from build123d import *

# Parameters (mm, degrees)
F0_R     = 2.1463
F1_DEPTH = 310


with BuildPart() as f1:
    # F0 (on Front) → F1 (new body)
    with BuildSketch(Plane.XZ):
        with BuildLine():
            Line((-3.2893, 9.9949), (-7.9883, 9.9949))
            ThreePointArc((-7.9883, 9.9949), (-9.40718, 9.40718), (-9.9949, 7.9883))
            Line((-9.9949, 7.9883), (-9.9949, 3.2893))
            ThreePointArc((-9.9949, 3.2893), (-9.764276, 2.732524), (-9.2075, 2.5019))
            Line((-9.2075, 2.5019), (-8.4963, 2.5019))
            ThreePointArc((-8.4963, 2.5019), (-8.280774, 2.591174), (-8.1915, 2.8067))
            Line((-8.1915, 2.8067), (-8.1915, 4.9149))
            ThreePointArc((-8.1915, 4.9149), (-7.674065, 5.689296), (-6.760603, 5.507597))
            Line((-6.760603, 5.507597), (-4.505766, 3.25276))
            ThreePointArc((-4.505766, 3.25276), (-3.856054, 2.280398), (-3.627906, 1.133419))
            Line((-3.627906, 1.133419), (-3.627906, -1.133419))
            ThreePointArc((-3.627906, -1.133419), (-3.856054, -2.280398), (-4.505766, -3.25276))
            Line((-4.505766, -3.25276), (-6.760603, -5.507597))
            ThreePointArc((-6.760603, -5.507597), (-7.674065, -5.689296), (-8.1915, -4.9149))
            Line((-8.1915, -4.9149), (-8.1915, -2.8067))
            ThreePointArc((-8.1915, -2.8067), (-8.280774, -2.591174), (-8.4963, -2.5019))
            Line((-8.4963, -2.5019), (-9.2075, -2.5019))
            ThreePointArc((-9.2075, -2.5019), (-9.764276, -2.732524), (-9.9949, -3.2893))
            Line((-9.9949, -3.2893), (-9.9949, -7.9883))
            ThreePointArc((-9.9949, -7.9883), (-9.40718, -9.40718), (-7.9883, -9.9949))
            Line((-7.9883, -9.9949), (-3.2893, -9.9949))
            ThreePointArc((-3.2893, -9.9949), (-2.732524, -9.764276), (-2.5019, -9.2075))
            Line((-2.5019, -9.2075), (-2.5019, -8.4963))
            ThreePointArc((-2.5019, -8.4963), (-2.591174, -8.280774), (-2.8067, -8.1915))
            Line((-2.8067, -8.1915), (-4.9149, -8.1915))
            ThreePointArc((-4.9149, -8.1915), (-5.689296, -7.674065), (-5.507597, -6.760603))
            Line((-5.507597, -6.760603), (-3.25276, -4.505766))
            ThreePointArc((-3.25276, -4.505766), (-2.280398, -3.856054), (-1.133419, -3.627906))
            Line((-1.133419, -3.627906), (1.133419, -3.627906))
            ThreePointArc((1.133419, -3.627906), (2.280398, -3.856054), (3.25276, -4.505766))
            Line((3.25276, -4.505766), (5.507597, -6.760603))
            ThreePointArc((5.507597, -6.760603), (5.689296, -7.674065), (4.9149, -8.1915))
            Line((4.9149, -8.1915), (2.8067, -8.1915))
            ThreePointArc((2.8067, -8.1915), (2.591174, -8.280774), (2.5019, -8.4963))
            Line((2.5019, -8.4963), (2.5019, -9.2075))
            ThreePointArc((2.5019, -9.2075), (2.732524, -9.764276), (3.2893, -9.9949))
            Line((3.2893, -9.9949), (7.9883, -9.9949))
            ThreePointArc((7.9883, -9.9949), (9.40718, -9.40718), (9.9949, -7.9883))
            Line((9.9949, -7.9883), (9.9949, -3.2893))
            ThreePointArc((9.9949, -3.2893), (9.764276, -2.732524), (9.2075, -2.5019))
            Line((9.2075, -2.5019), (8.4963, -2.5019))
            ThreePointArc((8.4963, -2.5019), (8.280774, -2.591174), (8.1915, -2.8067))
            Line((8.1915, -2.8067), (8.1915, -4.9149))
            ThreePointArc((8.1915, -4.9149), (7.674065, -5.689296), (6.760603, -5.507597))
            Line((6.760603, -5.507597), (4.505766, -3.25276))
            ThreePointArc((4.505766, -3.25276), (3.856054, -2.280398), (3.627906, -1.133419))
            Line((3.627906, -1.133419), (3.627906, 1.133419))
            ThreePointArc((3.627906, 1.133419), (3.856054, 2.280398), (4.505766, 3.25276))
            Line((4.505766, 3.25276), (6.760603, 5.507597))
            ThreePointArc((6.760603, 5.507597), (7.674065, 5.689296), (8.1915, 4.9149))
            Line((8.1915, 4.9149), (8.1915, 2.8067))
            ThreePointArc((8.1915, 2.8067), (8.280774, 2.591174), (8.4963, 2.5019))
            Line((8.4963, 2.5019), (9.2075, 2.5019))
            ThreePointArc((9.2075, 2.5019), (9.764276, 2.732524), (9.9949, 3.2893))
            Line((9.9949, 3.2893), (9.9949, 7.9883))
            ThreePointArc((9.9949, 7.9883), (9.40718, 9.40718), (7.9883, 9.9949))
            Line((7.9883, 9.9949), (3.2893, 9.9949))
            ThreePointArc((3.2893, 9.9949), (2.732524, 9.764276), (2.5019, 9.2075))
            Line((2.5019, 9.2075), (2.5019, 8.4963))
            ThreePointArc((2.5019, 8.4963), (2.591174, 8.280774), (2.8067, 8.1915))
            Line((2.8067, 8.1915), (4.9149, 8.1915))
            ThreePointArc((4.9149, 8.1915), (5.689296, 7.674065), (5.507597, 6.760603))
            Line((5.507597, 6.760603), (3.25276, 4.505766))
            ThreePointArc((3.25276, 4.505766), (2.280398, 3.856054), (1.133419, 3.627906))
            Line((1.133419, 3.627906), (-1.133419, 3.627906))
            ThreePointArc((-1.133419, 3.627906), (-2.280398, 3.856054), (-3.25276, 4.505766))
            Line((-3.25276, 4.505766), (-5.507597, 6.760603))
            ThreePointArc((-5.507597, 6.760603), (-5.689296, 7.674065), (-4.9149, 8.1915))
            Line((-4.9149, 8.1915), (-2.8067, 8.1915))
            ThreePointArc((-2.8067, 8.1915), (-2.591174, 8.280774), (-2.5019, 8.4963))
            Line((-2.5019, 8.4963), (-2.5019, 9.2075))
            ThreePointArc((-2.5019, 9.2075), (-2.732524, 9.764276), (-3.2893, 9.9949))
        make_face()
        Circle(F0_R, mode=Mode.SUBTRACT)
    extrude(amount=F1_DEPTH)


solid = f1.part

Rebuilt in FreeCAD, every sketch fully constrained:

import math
import FreeCAD as App
import Part
import Sketcher
from FreeCAD import Vector
Q = App.Units.Quantity

doc = App.newDocument("Part")
body = doc.addObject("PartDesign::Body", "Body")

# Sketch on XZ plane
sketch1 = body.newObject("Sketcher::SketchObject", "Sketch")
sketch1.AttachmentSupport = (doc.getObject("XZ_Plane"), [""])
sketch1.MapMode = "FlatFace"
sketch1.addGeometry(Part.LineSegment(Vector(-3.29, 9.99, 0), Vector(-7.99, 9.99, 0)), False)
sketch1.addGeometry(Part.ArcOfCircle(Part.Circle(Vector(-7.99, 7.99, 0), Vector(0, 0, 1), 2.01), math.radians(90), math.radians(180)), False)
sketch1.addGeometry(Part.LineSegment(Vector(-9.99, 7.99, 0), Vector(-9.99, 3.29, 0)), False)
sketch1.addGeometry(Part.ArcOfCircle(Part.Circle(Vector(-9.21, 3.29, 0), Vector(0, 0, 1), 0.79), math.radians(180), math.radians(270)), False)
sketch1.addGeometry(Part.LineSegment(Vector(-9.21, 2.5, 0), Vector(-8.5, 2.5, 0)), False)
sketch1.addGeometry(Part.ArcOfCircle(Part.Circle(Vector(-8.5, 2.81, 0), Vector(0, 0, 1), 0.3), math.radians(-90), math.radians(0)), False)
sketch1.addGeometry(Part.LineSegment(Vector(-8.19, 2.81, 0), Vector(-8.19, 4.91, 0)), False)
sketch1.addGeometry(Part.ArcOfCircle(Part.Circle(Vector(-7.35, 4.91, 0), Vector(0, 0, 1), 0.84), math.radians(45), math.radians(180)), False)
sketch1.addGeometry(Part.LineSegment(Vector(-6.76, 5.51, 0), Vector(-4.51, 3.25, 0)), False)
sketch1.addGeometry(Part.ArcOfCircle(Part.Circle(Vector(-6.63, 1.13, 0), Vector(0, 0, 1), 3), math.radians(0), math.radians(45)), False)
sketch1.addGeometry(Part.LineSegment(Vector(-3.63, 1.13, 0), Vector(-3.63, -1.13, 0)), False)
sketch1.addGeometry(Part.ArcOfCircle(Part.Circle(Vector(-6.63, -1.13, 0), Vector(0, 0, 1), 3), math.radians(-45), math.radians(0)), False)
sketch1.addGeometry(Part.LineSegment(Vector(-4.51, -3.25, 0), Vector(-6.76, -5.51, 0)), False)
sketch1.addGeometry(Part.ArcOfCircle(Part.Circle(Vector(-7.35, -4.91, 0), Vector(0, 0, 1), 0.84), math.radians(180), math.radians(315)), False)
sketch1.addGeometry(Part.LineSegment(Vector(-8.19, -4.91, 0), Vector(-8.19, -2.81, 0)), False)
sketch1.addGeometry(Part.ArcOfCircle(Part.Circle(Vector(-8.5, -2.81, 0), Vector(0, 0, 1), 0.3), math.radians(0), math.radians(90)), False)
sketch1.addGeometry(Part.LineSegment(Vector(-8.5, -2.5, 0), Vector(-9.21, -2.5, 0)), False)
sketch1.addGeometry(Part.ArcOfCircle(Part.Circle(Vector(-9.21, -3.29, 0), Vector(0, 0, 1), 0.79), math.radians(90), math.radians(180)), False)
sketch1.addGeometry(Part.LineSegment(Vector(-9.99, -3.29, 0), Vector(-9.99, -7.99, 0)), False)
sketch1.addGeometry(Part.ArcOfCircle(Part.Circle(Vector(-7.99, -7.99, 0), Vector(0, 0, 1), 2.01), math.radians(-180), math.radians(-90)), False)
sketch1.addGeometry(Part.LineSegment(Vector(-7.99, -9.99, 0), Vector(-3.29, -9.99, 0)), False)
sketch1.addGeometry(Part.ArcOfCircle(Part.Circle(Vector(-3.29, -9.21, 0), Vector(0, 0, 1), 0.79), math.radians(-90), math.radians(0)), False)
sketch1.addGeometry(Part.LineSegment(Vector(-2.5, -9.21, 0), Vector(-2.5, -8.5, 0)), False)
sketch1.addGeometry(Part.ArcOfCircle(Part.Circle(Vector(-2.81, -8.5, 0), Vector(0, 0, 1), 0.3), math.radians(0), math.radians(90)), False)
sketch1.addGeometry(Part.LineSegment(Vector(-2.81, -8.19, 0), Vector(-4.91, -8.19, 0)), False)
sketch1.addGeometry(Part.ArcOfCircle(Part.Circle(Vector(-4.91, -7.35, 0), Vector(0, 0, 1), 0.84), math.radians(135), math.radians(270)), False)
sketch1.addGeometry(Part.LineSegment(Vector(-5.51, -6.76, 0), Vector(-3.25, -4.51, 0)), False)
sketch1.addGeometry(Part.ArcOfCircle(Part.Circle(Vector(-1.13, -6.63, 0), Vector(0, 0, 1), 3), math.radians(90), math.radians(135)), False)
sketch1.addGeometry(Part.LineSegment(Vector(-1.13, -3.63, 0), Vector(1.13, -3.63, 0)), False)
sketch1.addGeometry(Part.ArcOfCircle(Part.Circle(Vector(1.13, -6.63, 0), Vector(0, 0, 1), 3), math.radians(45), math.radians(90)), False)
sketch1.addGeometry(Part.LineSegment(Vector(3.25, -4.51, 0), Vector(5.51, -6.76, 0)), False)
sketch1.addGeometry(Part.ArcOfCircle(Part.Circle(Vector(4.91, -7.35, 0), Vector(0, 0, 1), 0.84), math.radians(-90), math.radians(45)), False)
sketch1.addGeometry(Part.LineSegment(Vector(4.91, -8.19, 0), Vector(2.81, -8.19, 0)), False)
sketch1.addGeometry(Part.ArcOfCircle(Part.Circle(Vector(2.81, -8.5, 0), Vector(0, 0, 1), 0.3), math.radians(90), math.radians(180)), False)
sketch1.addGeometry(Part.LineSegment(Vector(2.5, -8.5, 0), Vector(2.5, -9.21, 0)), False)
sketch1.addGeometry(Part.ArcOfCircle(Part.Circle(Vector(3.29, -9.21, 0), Vector(0, 0, 1), 0.79), math.radians(180), math.radians(270)), False)
sketch1.addGeometry(Part.LineSegment(Vector(3.29, -9.99, 0), Vector(7.99, -9.99, 0)), False)
sketch1.addGeometry(Part.ArcOfCircle(Part.Circle(Vector(7.99, -7.99, 0), Vector(0, 0, 1), 2.01), math.radians(-90), math.radians(0)), False)
sketch1.addGeometry(Part.LineSegment(Vector(9.99, -7.99, 0), Vector(9.99, -3.29, 0)), False)
sketch1.addGeometry(Part.ArcOfCircle(Part.Circle(Vector(9.21, -3.29, 0), Vector(0, 0, 1), 0.79), math.radians(0), math.radians(90)), False)
sketch1.addGeometry(Part.LineSegment(Vector(9.21, -2.5, 0), Vector(8.5, -2.5, 0)), False)
sketch1.addGeometry(Part.ArcOfCircle(Part.Circle(Vector(8.5, -2.81, 0), Vector(0, 0, 1), 0.3), math.radians(90), math.radians(180)), False)
sketch1.addGeometry(Part.LineSegment(Vector(8.19, -2.81, 0), Vector(8.19, -4.91, 0)), False)
sketch1.addGeometry(Part.ArcOfCircle(Part.Circle(Vector(7.35, -4.91, 0), Vector(0, 0, 1), 0.84), math.radians(-135), math.radians(0)), False)
sketch1.addGeometry(Part.LineSegment(Vector(6.76, -5.51, 0), Vector(4.51, -3.25, 0)), False)
sketch1.addGeometry(Part.ArcOfCircle(Part.Circle(Vector(6.63, -1.13, 0), Vector(0, 0, 1), 3), math.radians(180), math.radians(225)), False)
sketch1.addGeometry(Part.LineSegment(Vector(3.63, -1.13, 0), Vector(3.63, 1.13, 0)), False)
sketch1.addGeometry(Part.ArcOfCircle(Part.Circle(Vector(6.63, 1.13, 0), Vector(0, 0, 1), 3), math.radians(135), math.radians(180)), False)
sketch1.addGeometry(Part.LineSegment(Vector(4.51, 3.25, 0), Vector(6.76, 5.51, 0)), False)
sketch1.addGeometry(Part.ArcOfCircle(Part.Circle(Vector(7.35, 4.91, 0), Vector(0, 0, 1), 0.84), math.radians(0), math.radians(135)), False)
sketch1.addGeometry(Part.LineSegment(Vector(8.19, 4.91, 0), Vector(8.19, 2.81, 0)), False)
sketch1.addGeometry(Part.ArcOfCircle(Part.Circle(Vector(8.5, 2.81, 0), Vector(0, 0, 1), 0.3), math.radians(-180), math.radians(-90)), False)
sketch1.addGeometry(Part.LineSegment(Vector(8.5, 2.5, 0), Vector(9.21, 2.5, 0)), False)
sketch1.addGeometry(Part.ArcOfCircle(Part.Circle(Vector(9.21, 3.29, 0), Vector(0, 0, 1), 0.79), math.radians(-90), math.radians(0)), False)
sketch1.addGeometry(Part.LineSegment(Vector(9.99, 3.29, 0), Vector(9.99, 7.99, 0)), False)
sketch1.addGeometry(Part.ArcOfCircle(Part.Circle(Vector(7.99, 7.99, 0), Vector(0, 0, 1), 2.01), math.radians(0), math.radians(90)), False)
sketch1.addGeometry(Part.LineSegment(Vector(7.99, 9.99, 0), Vector(3.29, 9.99, 0)), False)
sketch1.addGeometry(Part.ArcOfCircle(Part.Circle(Vector(3.29, 9.21, 0), Vector(0, 0, 1), 0.79), math.radians(90), math.radians(180)), False)
sketch1.addGeometry(Part.LineSegment(Vector(2.5, 9.21, 0), Vector(2.5, 8.5, 0)), False)
sketch1.addGeometry(Part.ArcOfCircle(Part.Circle(Vector(2.81, 8.5, 0), Vector(0, 0, 1), 0.3), math.radians(-180), math.radians(-90)), False)
sketch1.addGeometry(Part.LineSegment(Vector(2.81, 8.19, 0), Vector(4.91, 8.19, 0)), False)
sketch1.addGeometry(Part.ArcOfCircle(Part.Circle(Vector(4.91, 7.35, 0), Vector(0, 0, 1), 0.84), math.radians(-45), math.radians(90)), False)
sketch1.addGeometry(Part.LineSegment(Vector(5.51, 6.76, 0), Vector(3.25, 4.51, 0)), False)
sketch1.addGeometry(Part.ArcOfCircle(Part.Circle(Vector(1.13, 6.63, 0), Vector(0, 0, 1), 3), math.radians(-90), math.radians(-45)), False)
sketch1.addGeometry(Part.LineSegment(Vector(1.13, 3.63, 0), Vector(-1.13, 3.63, 0)), False)
sketch1.addGeometry(Part.ArcOfCircle(Part.Circle(Vector(-1.13, 6.63, 0), Vector(0, 0, 1), 3), math.radians(-135), math.radians(-90)), False)
sketch1.addGeometry(Part.LineSegment(Vector(-3.25, 4.51, 0), Vector(-5.51, 6.76, 0)), False)
sketch1.addGeometry(Part.ArcOfCircle(Part.Circle(Vector(-4.91, 7.35, 0), Vector(0, 0, 1), 0.84), math.radians(90), math.radians(225)), False)
sketch1.addGeometry(Part.LineSegment(Vector(-4.91, 8.19, 0), Vector(-2.81, 8.19, 0)), False)
sketch1.addGeometry(Part.ArcOfCircle(Part.Circle(Vector(-2.81, 8.5, 0), Vector(0, 0, 1), 0.3), math.radians(-90), math.radians(0)), False)
sketch1.addGeometry(Part.LineSegment(Vector(-2.5, 8.5, 0), Vector(-2.5, 9.21, 0)), False)
sketch1.addGeometry(Part.ArcOfCircle(Part.Circle(Vector(-3.29, 9.21, 0), Vector(0, 0, 1), 0.79), math.radians(0), math.radians(90)), False)
sketch1.addGeometry(Part.Circle(Vector(0, 0, 0), Vector(0, 0, 1), 2.15), False)
sketch1.addConstraint(Sketcher.Constraint("Tangent", 0, 2, 1, 1))
sketch1.addConstraint(Sketcher.Constraint("Tangent", 1, 2, 2, 1))
sketch1.addConstraint(Sketcher.Constraint("Tangent", 2, 2, 3, 1))
sketch1.addConstraint(Sketcher.Constraint("Tangent", 3, 2, 4, 1))
sketch1.addConstraint(Sketcher.Constraint("Tangent", 4, 2, 5, 1))
sketch1.addConstraint(Sketcher.Constraint("Tangent", 5, 2, 6, 1))
sketch1.addConstraint(Sketcher.Constraint("Tangent", 6, 2, 7, 2))
sketch1.addConstraint(Sketcher.Constraint("Tangent", 7, 1, 8, 1))
sketch1.addConstraint(Sketcher.Constraint("Tangent", 8, 2, 9, 2))
sketch1.addConstraint(Sketcher.Constraint("Tangent", 9, 1, 10, 1))
sketch1.addConstraint(Sketcher.Constraint("Tangent", 10, 2, 11, 2))
sketch1.addConstraint(Sketcher.Constraint("Tangent", 11, 1, 12, 1))
sketch1.addConstraint(Sketcher.Constraint("Tangent", 12, 2, 13, 2))
sketch1.addConstraint(Sketcher.Constraint("Tangent", 13, 1, 14, 1))
sketch1.addConstraint(Sketcher.Constraint("Tangent", 14, 2, 15, 1))
sketch1.addConstraint(Sketcher.Constraint("Tangent", 15, 2, 16, 1))
sketch1.addConstraint(Sketcher.Constraint("Tangent", 16, 2, 17, 1))
sketch1.addConstraint(Sketcher.Constraint("Tangent", 17, 2, 18, 1))
sketch1.addConstraint(Sketcher.Constraint("Tangent", 18, 2, 19, 1))
sketch1.addConstraint(Sketcher.Constraint("Tangent", 19, 2, 20, 1))
sketch1.addConstraint(Sketcher.Constraint("Tangent", 20, 2, 21, 1))
sketch1.addConstraint(Sketcher.Constraint("Tangent", 21, 2, 22, 1))
sketch1.addConstraint(Sketcher.Constraint("Tangent", 22, 2, 23, 1))
sketch1.addConstraint(Sketcher.Constraint("Tangent", 23, 2, 24, 1))
sketch1.addConstraint(Sketcher.Constraint("Tangent", 24, 2, 25, 2))
sketch1.addConstraint(Sketcher.Constraint("Tangent", 25, 1, 26, 1))
sketch1.addConstraint(Sketcher.Constraint("Tangent", 26, 2, 27, 2))
sketch1.addConstraint(Sketcher.Constraint("Tangent", 27, 1, 28, 1))
sketch1.addConstraint(Sketcher.Constraint("Tangent", 28, 2, 29, 2))
sketch1.addConstraint(Sketcher.Constraint("Tangent", 29, 1, 30, 1))
sketch1.addConstraint(Sketcher.Constraint("Tangent", 30, 2, 31, 2))
sketch1.addConstraint(Sketcher.Constraint("Tangent", 31, 1, 32, 1))
sketch1.addConstraint(Sketcher.Constraint("Tangent", 32, 2, 33, 1))
sketch1.addConstraint(Sketcher.Constraint("Tangent", 33, 2, 34, 1))
sketch1.addConstraint(Sketcher.Constraint("Tangent", 34, 2, 35, 1))
sketch1.addConstraint(Sketcher.Constraint("Tangent", 35, 2, 36, 1))
sketch1.addConstraint(Sketcher.Constraint("Tangent", 36, 2, 37, 1))
sketch1.addConstraint(Sketcher.Constraint("Tangent", 37, 2, 38, 1))
sketch1.addConstraint(Sketcher.Constraint("Tangent", 38, 2, 39, 1))
sketch1.addConstraint(Sketcher.Constraint("Tangent", 39, 2, 40, 1))
sketch1.addConstraint(Sketcher.Constraint("Tangent", 40, 2, 41, 1))
sketch1.addConstraint(Sketcher.Constraint("Tangent", 41, 2, 42, 1))
sketch1.addConstraint(Sketcher.Constraint("Tangent", 42, 2, 43, 2))
sketch1.addConstraint(Sketcher.Constraint("Tangent", 43, 1, 44, 1))
sketch1.addConstraint(Sketcher.Constraint("Tangent", 44, 2, 45, 2))
sketch1.addConstraint(Sketcher.Constraint("Tangent", 45, 1, 46, 1))
sketch1.addConstraint(Sketcher.Constraint("Tangent", 46, 2, 47, 2))
sketch1.addConstraint(Sketcher.Constraint("Tangent", 47, 1, 48, 1))
sketch1.addConstraint(Sketcher.Constraint("Tangent", 48, 2, 49, 2))
sketch1.addConstraint(Sketcher.Constraint("Tangent", 49, 1, 50, 1))
sketch1.addConstraint(Sketcher.Constraint("Tangent", 50, 2, 51, 1))
sketch1.addConstraint(Sketcher.Constraint("Tangent", 51, 2, 52, 1))
sketch1.addConstraint(Sketcher.Constraint("Tangent", 52, 2, 53, 1))
sketch1.addConstraint(Sketcher.Constraint("Tangent", 53, 2, 54, 1))
sketch1.addConstraint(Sketcher.Constraint("Tangent", 54, 2, 55, 1))
sketch1.addConstraint(Sketcher.Constraint("Tangent", 55, 2, 56, 1))
sketch1.addConstraint(Sketcher.Constraint("Tangent", 56, 2, 57, 1))
sketch1.addConstraint(Sketcher.Constraint("Tangent", 57, 2, 58, 1))
sketch1.addConstraint(Sketcher.Constraint("Tangent", 58, 2, 59, 1))
sketch1.addConstraint(Sketcher.Constraint("Tangent", 59, 2, 60, 1))
sketch1.addConstraint(Sketcher.Constraint("Tangent", 60, 2, 61, 2))
sketch1.addConstraint(Sketcher.Constraint("Tangent", 61, 1, 62, 1))
sketch1.addConstraint(Sketcher.Constraint("Tangent", 62, 2, 63, 2))
sketch1.addConstraint(Sketcher.Constraint("Tangent", 63, 1, 64, 1))
sketch1.addConstraint(Sketcher.Constraint("Tangent", 64, 2, 65, 2))
sketch1.addConstraint(Sketcher.Constraint("Tangent", 65, 1, 66, 1))
sketch1.addConstraint(Sketcher.Constraint("Tangent", 66, 2, 67, 2))
sketch1.addConstraint(Sketcher.Constraint("Tangent", 67, 1, 68, 1))
sketch1.addConstraint(Sketcher.Constraint("Tangent", 68, 2, 69, 1))
sketch1.addConstraint(Sketcher.Constraint("Tangent", 69, 2, 70, 1))
sketch1.addConstraint(Sketcher.Constraint("Tangent", 70, 2, 71, 1))
sketch1.addConstraint(Sketcher.Constraint("Tangent", 71, 2, 0, 1))
sketch1.addConstraint(Sketcher.Constraint("Horizontal", 0))
sketch1.addConstraint(Sketcher.Constraint("Vertical", 2))
sketch1.addConstraint(Sketcher.Constraint("Horizontal", 4))
sketch1.addConstraint(Sketcher.Constraint("Vertical", 6))
sketch1.addConstraint(Sketcher.Constraint("Vertical", 10))
sketch1.addConstraint(Sketcher.Constraint("Vertical", 14))
sketch1.addConstraint(Sketcher.Constraint("Horizontal", 16))
sketch1.addConstraint(Sketcher.Constraint("Vertical", 18))
sketch1.addConstraint(Sketcher.Constraint("Horizontal", 20))
sketch1.addConstraint(Sketcher.Constraint("Vertical", 22))
sketch1.addConstraint(Sketcher.Constraint("Horizontal", 24))
sketch1.addConstraint(Sketcher.Constraint("Horizontal", 28))
sketch1.addConstraint(Sketcher.Constraint("Horizontal", 32))
sketch1.addConstraint(Sketcher.Constraint("Vertical", 34))
sketch1.addConstraint(Sketcher.Constraint("Horizontal", 36))
sketch1.addConstraint(Sketcher.Constraint("Vertical", 38))
sketch1.addConstraint(Sketcher.Constraint("Horizontal", 40))
sketch1.addConstraint(Sketcher.Constraint("Vertical", 42))
sketch1.addConstraint(Sketcher.Constraint("Vertical", 46))
sketch1.addConstraint(Sketcher.Constraint("Vertical", 50))
sketch1.addConstraint(Sketcher.Constraint("Horizontal", 52))
sketch1.addConstraint(Sketcher.Constraint("Vertical", 54))
sketch1.addConstraint(Sketcher.Constraint("Horizontal", 56))
sketch1.addConstraint(Sketcher.Constraint("Vertical", 58))
sketch1.addConstraint(Sketcher.Constraint("Horizontal", 60))
sketch1.addConstraint(Sketcher.Constraint("Horizontal", 64))
sketch1.addConstraint(Sketcher.Constraint("Horizontal", 68))
sketch1.addConstraint(Sketcher.Constraint("Vertical", 70))
sketch1.addConstraint(Sketcher.Constraint("Coincident", 72, 3, -1, 1))
sketch1.addConstraint(Sketcher.Constraint("Equal", 9, 11))
sketch1.addConstraint(Sketcher.Constraint("Equal", 7, 13))
sketch1.addConstraint(Sketcher.Constraint("Equal", 5, 15))
sketch1.addConstraint(Sketcher.Constraint("Equal", 3, 17))
sketch1.addConstraint(Sketcher.Constraint("Equal", 1, 19))
sketch1.addConstraint(Sketcher.Constraint("Equal", 17, 21))
sketch1.addConstraint(Sketcher.Constraint("Equal", 15, 23))
sketch1.addConstraint(Sketcher.Constraint("Equal", 13, 25))
sketch1.addConstraint(Sketcher.Constraint("Equal", 11, 27))
sketch1.addConstraint(Sketcher.Constraint("Equal", 27, 29))
sketch1.addConstraint(Sketcher.Constraint("Equal", 25, 31))
sketch1.addConstraint(Sketcher.Constraint("Equal", 23, 33))
sketch1.addConstraint(Sketcher.Constraint("Equal", 21, 35))
sketch1.addConstraint(Sketcher.Constraint("Equal", 19, 37))
sketch1.addConstraint(Sketcher.Constraint("Equal", 35, 39))
sketch1.addConstraint(Sketcher.Constraint("Equal", 33, 41))
sketch1.addConstraint(Sketcher.Constraint("Equal", 31, 43))
sketch1.addConstraint(Sketcher.Constraint("Equal", 29, 45))
sketch1.addConstraint(Sketcher.Constraint("Equal", 45, 47))
sketch1.addConstraint(Sketcher.Constraint("Equal", 43, 49))
sketch1.addConstraint(Sketcher.Constraint("Equal", 41, 51))
sketch1.addConstraint(Sketcher.Constraint("Equal", 39, 53))
sketch1.addConstraint(Sketcher.Constraint("Equal", 37, 55))
sketch1.addConstraint(Sketcher.Constraint("Equal", 53, 57))
sketch1.addConstraint(Sketcher.Constraint("Equal", 51, 59))
sketch1.addConstraint(Sketcher.Constraint("Equal", 49, 61))
sketch1.addConstraint(Sketcher.Constraint("Equal", 47, 63))
sketch1.addConstraint(Sketcher.Constraint("Equal", 63, 65))
sketch1.addConstraint(Sketcher.Constraint("Equal", 61, 67))
sketch1.addConstraint(Sketcher.Constraint("Equal", 59, 69))
sketch1.addConstraint(Sketcher.Constraint("Equal", 57, 71))
sketch1.addConstraint(Sketcher.Constraint("Symmetric", 1, 3, 37, 3, -1, 1))
sketch1.addConstraint(Sketcher.Constraint("Symmetric", 5, 3, 41, 3, -1, 1))
sketch1.addConstraint(Sketcher.Constraint("Symmetric", 9, 3, 45, 3, -1, 1))
sketch1.addConstraint(Sketcher.Constraint("Symmetric", 13, 3, 49, 3, -1, 1))
sketch1.addConstraint(Sketcher.Constraint("Symmetric", 17, 3, 53, 3, -1, 1))
sketch1.addConstraint(Sketcher.Constraint("Symmetric", 21, 3, 57, 3, -1, 1))
sketch1.addConstraint(Sketcher.Constraint("Symmetric", 25, 3, 61, 3, -1, 1))
sketch1.addConstraint(Sketcher.Constraint("Symmetric", 27, 3, 63, 3, -1, 1))
sketch1.addConstraint(Sketcher.Constraint("Symmetric", 31, 3, 67, 3, -1, 1))
sketch1.addConstraint(Sketcher.Constraint("Symmetric", 25, 3, 31, 3, -2))
sketch1.addConstraint(Sketcher.Constraint("Symmetric", 21, 3, 35, 3, -2))
sketch1.addConstraint(Sketcher.Constraint("Symmetric", 17, 3, 39, 3, -2))
sketch1.addConstraint(Sketcher.Constraint("Symmetric", 13, 3, 43, 3, -2))
sketch1.addConstraint(Sketcher.Constraint("Symmetric", 8, 2, 47, 1, -2))
sketch1.addConstraint(Sketcher.Constraint("Perpendicular", 8, 12))
sketch1.addConstraint(Sketcher.Constraint("Parallel", 12, 26))
sketch1.addConstraint(Sketcher.Constraint("Perpendicular", 26, 30))
sketch1.addConstraint(Sketcher.Constraint("Perpendicular", 44, 48))
sketch1.addConstraint(Sketcher.Constraint("Perpendicular", 62, 66))
sketch1.addConstraint(Sketcher.Constraint("Vertical", 23, 3, 69, 3))
sketch1.addConstraint(Sketcher.Constraint("Equal", 56, 2))
sketch1.addConstraint(Sketcher.Constraint("Equal", 68, 6))
sketch1.addConstraint(Sketcher.Constraint("Equal", 64, 10))
sketch1.addConstraint(Sketcher.Constraint("Equal", 52, 22))
sketch1.addConstraint(Sketcher.Constraint("Equal", 12, 26))
sketch1.addConstraint(Sketcher.Constraint("Diameter", 72, Q("0.169 in")))
sketch1.addConstraint(Sketcher.Constraint("Radius", 1, Q("0.0790001 in")))
sketch1.addConstraint(Sketcher.Constraint("Radius", 3, Q("0.031 in")))
sketch1.addConstraint(Sketcher.Constraint("Radius", 5, Q("0.012 in")))
sketch1.addConstraint(Sketcher.Constraint("Radius", 7, Q("0.033 in")))
sketch1.addConstraint(Sketcher.Constraint("Radius", 9, Q("0.1179999 in")))
sketch1.addConstraint(Sketcher.Constraint("DistanceX", 0, 2, 0, 1, Q("0.185 in")))
sketch1.addConstraint(Sketcher.Constraint("DistanceX", 4, 1, 4, 2, Q("0.028 in")))
sketch1.addConstraint(Sketcher.Constraint("DistanceX", 24, 2, 24, 1, Q("0.083 in")))
sketch1.addConstraint(Sketcher.Constraint("DistanceX", 1, 3, -1, 1, Q("0.3144999 in")))
sketch1.addConstraint(Sketcher.Constraint("Distance", 8, 3.188821))
pad1 = body.newObject("PartDesign::Pad", "Pad")
pad1.Profile = sketch1
pad1.Length = 310

doc.recompute()
